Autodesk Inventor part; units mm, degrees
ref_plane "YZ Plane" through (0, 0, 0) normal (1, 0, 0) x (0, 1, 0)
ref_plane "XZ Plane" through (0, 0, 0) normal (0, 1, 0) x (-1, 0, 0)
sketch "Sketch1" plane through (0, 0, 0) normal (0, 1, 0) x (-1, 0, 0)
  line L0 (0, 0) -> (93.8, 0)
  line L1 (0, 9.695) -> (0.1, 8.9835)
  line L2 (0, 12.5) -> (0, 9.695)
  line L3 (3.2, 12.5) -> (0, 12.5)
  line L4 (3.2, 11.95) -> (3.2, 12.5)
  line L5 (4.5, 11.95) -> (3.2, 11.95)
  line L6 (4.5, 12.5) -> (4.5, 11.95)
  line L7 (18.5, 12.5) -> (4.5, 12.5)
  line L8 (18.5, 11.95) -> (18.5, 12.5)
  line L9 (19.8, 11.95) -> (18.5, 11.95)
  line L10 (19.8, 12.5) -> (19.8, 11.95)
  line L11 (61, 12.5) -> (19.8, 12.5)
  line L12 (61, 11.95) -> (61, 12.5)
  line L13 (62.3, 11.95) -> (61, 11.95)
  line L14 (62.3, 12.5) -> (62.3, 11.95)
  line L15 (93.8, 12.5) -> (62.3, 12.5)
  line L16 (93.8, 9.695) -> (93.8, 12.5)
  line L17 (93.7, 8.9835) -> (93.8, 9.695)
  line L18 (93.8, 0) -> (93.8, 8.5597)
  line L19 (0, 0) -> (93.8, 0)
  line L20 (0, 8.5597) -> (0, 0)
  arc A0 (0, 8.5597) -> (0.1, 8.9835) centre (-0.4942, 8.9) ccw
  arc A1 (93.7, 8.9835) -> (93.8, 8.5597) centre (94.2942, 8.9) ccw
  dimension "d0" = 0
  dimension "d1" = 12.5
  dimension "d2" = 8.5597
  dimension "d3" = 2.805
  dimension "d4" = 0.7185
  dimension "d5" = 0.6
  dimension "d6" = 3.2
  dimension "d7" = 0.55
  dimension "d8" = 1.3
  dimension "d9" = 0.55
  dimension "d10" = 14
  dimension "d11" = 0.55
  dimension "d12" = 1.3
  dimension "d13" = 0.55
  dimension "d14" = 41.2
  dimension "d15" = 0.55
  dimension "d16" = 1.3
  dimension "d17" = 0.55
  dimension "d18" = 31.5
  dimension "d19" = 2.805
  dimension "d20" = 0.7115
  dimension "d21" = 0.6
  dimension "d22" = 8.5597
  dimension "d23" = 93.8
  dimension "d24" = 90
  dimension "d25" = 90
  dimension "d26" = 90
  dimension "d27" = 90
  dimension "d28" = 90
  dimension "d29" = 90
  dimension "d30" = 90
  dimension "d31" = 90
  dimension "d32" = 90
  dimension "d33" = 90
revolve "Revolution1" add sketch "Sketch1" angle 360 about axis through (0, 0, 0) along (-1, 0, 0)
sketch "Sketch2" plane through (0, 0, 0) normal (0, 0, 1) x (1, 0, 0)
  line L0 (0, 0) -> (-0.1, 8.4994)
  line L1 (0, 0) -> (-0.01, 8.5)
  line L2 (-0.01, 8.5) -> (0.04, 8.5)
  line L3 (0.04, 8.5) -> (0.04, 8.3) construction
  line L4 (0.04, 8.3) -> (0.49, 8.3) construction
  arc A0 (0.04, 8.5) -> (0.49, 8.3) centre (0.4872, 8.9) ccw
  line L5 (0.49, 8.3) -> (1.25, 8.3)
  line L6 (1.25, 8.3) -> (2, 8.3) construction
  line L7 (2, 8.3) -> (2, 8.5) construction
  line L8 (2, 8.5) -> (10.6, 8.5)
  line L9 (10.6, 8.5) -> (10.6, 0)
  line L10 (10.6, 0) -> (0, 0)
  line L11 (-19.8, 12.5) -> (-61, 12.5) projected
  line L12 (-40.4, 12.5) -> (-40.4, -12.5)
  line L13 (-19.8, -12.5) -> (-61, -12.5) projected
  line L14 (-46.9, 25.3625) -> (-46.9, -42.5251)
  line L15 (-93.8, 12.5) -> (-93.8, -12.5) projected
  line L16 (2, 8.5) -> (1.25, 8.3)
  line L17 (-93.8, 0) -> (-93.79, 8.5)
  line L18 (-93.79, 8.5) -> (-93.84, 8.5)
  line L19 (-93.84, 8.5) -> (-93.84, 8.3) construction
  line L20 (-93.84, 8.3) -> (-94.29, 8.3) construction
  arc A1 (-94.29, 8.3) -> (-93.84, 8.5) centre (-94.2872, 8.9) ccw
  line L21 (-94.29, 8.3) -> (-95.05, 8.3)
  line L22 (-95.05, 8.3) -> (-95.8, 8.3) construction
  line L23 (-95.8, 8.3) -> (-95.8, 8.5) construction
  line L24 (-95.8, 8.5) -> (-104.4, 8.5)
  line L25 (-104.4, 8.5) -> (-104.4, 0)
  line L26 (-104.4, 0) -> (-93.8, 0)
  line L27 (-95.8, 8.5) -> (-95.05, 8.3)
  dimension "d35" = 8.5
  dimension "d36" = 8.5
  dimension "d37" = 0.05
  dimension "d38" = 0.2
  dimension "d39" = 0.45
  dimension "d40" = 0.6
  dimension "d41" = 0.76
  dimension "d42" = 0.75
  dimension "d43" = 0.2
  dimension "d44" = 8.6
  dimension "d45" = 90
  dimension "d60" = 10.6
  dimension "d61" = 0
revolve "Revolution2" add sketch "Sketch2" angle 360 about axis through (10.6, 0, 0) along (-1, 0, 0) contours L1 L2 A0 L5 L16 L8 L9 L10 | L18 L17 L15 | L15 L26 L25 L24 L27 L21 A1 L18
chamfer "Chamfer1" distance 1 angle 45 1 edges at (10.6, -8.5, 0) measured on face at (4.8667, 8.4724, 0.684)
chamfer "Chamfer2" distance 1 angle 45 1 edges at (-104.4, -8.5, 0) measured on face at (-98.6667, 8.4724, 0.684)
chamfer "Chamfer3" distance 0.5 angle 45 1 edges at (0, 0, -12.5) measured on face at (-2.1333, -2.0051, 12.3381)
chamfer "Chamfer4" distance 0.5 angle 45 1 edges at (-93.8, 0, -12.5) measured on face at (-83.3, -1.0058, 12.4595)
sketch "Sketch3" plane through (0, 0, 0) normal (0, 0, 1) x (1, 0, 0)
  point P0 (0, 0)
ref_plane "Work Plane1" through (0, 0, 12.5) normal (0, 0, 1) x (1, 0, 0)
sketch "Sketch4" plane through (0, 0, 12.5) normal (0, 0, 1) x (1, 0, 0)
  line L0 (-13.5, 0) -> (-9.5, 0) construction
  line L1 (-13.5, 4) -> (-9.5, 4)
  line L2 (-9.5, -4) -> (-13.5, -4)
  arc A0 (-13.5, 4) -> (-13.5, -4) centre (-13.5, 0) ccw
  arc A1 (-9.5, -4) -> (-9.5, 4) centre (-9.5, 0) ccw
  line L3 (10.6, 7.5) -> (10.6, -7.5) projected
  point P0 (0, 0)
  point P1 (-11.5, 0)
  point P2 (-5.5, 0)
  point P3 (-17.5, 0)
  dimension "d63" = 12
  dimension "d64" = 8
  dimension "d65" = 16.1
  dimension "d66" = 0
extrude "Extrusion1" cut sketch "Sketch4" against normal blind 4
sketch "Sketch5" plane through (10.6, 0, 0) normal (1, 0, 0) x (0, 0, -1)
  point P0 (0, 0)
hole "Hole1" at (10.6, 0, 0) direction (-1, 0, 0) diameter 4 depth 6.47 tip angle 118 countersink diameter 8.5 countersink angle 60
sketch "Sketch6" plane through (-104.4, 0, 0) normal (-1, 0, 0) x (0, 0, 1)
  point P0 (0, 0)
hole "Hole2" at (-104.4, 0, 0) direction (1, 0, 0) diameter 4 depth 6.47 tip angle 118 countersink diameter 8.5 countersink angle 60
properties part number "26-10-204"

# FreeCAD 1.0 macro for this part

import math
import FreeCAD as App
import Part
import Sketcher
Q = App.Units.Quantity


def edges_at(feature, points):
    """Names of the edges that pass closest to the given points."""
    edges = feature.Shape.Edges
    near = lambda p: min(range(len(edges)), key=lambda i: edges[i].distToShape(Part.Vertex(*p))[0])
    return sorted({f"Edge{near(p) + 1}" for p in points})

doc = App.newDocument("Part")
body = doc.addObject("PartDesign::Body", "Body")

sketch1 = body.newObject("Sketcher::SketchObject", "Sketch")
sketch1.AttachmentSupport = (doc.getObject("XZ_Plane"), [""])
sketch1.MapMode = "FlatFace"
sketch1.addGeometry([
    Part.LineSegment(App.Vector(0, 8.56, 0), App.Vector(0, 0, 0)),
    Part.LineSegment(App.Vector(0, 0, 0), App.Vector(-93.8, 0, 0)),
    Part.LineSegment(App.Vector(-93.8, 0, 0), App.Vector(-93.8, 8.56, 0)),
    Part.ArcOfCircle(Part.Circle(App.Vector(-94.29, 8.9, 0), App.Vector(0, 0, 1), 0.6), math.radians(-35), math.radians(8)),
    Part.LineSegment(App.Vector(-93.7, 8.98, 0), App.Vector(-93.8, 9.7, 0)),
    Part.LineSegment(App.Vector(-93.8, 9.7, 0), App.Vector(-93.8, 12.5, 0)),
    Part.LineSegment(App.Vector(-93.8, 12.5, 0), App.Vector(-62.3, 12.5, 0)),
    Part.LineSegment(App.Vector(-62.3, 12.5, 0), App.Vector(-62.3, 11.95, 0)),
    Part.LineSegment(App.Vector(-62.3, 11.95, 0), App.Vector(-61, 11.95, 0)),
    Part.LineSegment(App.Vector(-61, 11.95, 0), App.Vector(-61, 12.5, 0)),
    Part.LineSegment(App.Vector(-61, 12.5, 0), App.Vector(-19.8, 12.5, 0)),
    Part.LineSegment(App.Vector(-19.8, 12.5, 0), App.Vector(-19.8, 11.95, 0)),
    Part.LineSegment(App.Vector(-19.8, 11.95, 0), App.Vector(-18.5, 11.95, 0)),
    Part.LineSegment(App.Vector(-18.5, 11.95, 0), App.Vector(-18.5, 12.5, 0)),
    Part.LineSegment(App.Vector(-18.5, 12.5, 0), App.Vector(-4.5, 12.5, 0)),
    Part.LineSegment(App.Vector(-4.5, 12.5, 0), App.Vector(-4.5, 11.95, 0)),
    Part.LineSegment(App.Vector(-4.5, 11.95, 0), App.Vector(-3.2, 11.95, 0)),
    Part.LineSegment(App.Vector(-3.2, 11.95, 0), App.Vector(-3.2, 12.5, 0)),
    Part.LineSegment(App.Vector(-3.2, 12.5, 0), App.Vector(0, 12.5, 0)),
    Part.LineSegment(App.Vector(0, 12.5, 0), App.Vector(0, 9.7, 0)),
    Part.LineSegment(App.Vector(0, 9.7, 0), App.Vector(-0.1, 8.98, 0)),
    Part.ArcOfCircle(Part.Circle(App.Vector(0.49, 8.9, 0), App.Vector(0, 0, 1), 0.6), math.radians(172), math.radians(215)),
], False)
sketch1.addConstraint([
    Sketcher.Constraint("Coincident", 0, 2, 1, 1),
    Sketcher.Constraint("Coincident", 1, 2, 2, 1),
    Sketcher.Constraint("Coincident", 2, 2, 3, 1),
    Sketcher.Constraint("Tangent", 3, 2, 4, 1),
    Sketcher.Constraint("Coincident", 4, 2, 5, 1),
    Sketcher.Constraint("Coincident", 5, 2, 6, 1),
    Sketcher.Constraint("Coincident", 6, 2, 7, 1),
    Sketcher.Constraint("Coincident", 7, 2, 8, 1),
    Sketcher.Constraint("Coincident", 8, 2, 9, 1),
    Sketcher.Constraint("Coincident", 9, 2, 10, 1),
    Sketcher.Constraint("Coincident", 10, 2, 11, 1),
    Sketcher.Constraint("Coincident", 11, 2, 12, 1),
    Sketcher.Constraint("Coincident", 12, 2, 13, 1),
    Sketcher.Constraint("Coincident", 13, 2, 14, 1),
    Sketcher.Constraint("Coincident", 14, 2, 15, 1),
    Sketcher.Constraint("Coincident", 15, 2, 16, 1),
    Sketcher.Constraint("Coincident", 16, 2, 17, 1),
    Sketcher.Constraint("Coincident", 17, 2, 18, 1),
    Sketcher.Constraint("Coincident", 18, 2, 19, 1),
    Sketcher.Constraint("Coincident", 19, 2, 20, 1),
    Sketcher.Constraint("Tangent", 20, 2, 21, 1),
    Sketcher.Constraint("Coincident", 21, 2, 0, 1),
    Sketcher.Constraint("Vertical", 0),
    Sketcher.Constraint("Horizontal", 1),
    Sketcher.Constraint("Vertical", 2),
    Sketcher.Constraint("Vertical", 5),
    Sketcher.Constraint("Horizontal", 6),
    Sketcher.Constraint("Vertical", 7),
    Sketcher.Constraint("Horizontal", 8),
    Sketcher.Constraint("Vertical", 9),
    Sketcher.Constraint("Horizontal", 10),
    Sketcher.Constraint("Vertical", 11),
    Sketcher.Constraint("Horizontal", 12),
    Sketcher.Constraint("Vertical", 13),
    Sketcher.Constraint("Horizontal", 14),
    Sketcher.Constraint("Vertical", 15),
    Sketcher.Constraint("Horizontal", 16),
    Sketcher.Constraint("Vertical", 17),
    Sketcher.Constraint("Horizontal", 18),
    Sketcher.Constraint("Vertical", 19),
    Sketcher.Constraint("Coincident", 0, 2, -1, 1),
    Sketcher.Constraint("Equal", 3, 21),
    Sketcher.Constraint("PointOnObject", 18, 2, -2),
    Sketcher.Constraint("Horizontal", 3, 3, 21, 3),
    Sketcher.Constraint("Horizontal", 6, 2, 9, 2),
    Sketcher.Constraint("Horizontal", 8, 2, 11, 2),
    Sketcher.Constraint("Horizontal", 10, 2, 13, 2),
    Sketcher.Constraint("Horizontal", 12, 2, 15, 2),
    Sketcher.Constraint("Horizontal", 14, 2, 17, 2),
    Sketcher.Constraint("Horizontal", 4, 2, 19, 2),
    Sketcher.Constraint("Horizontal", 3, 2, 20, 2),
    Sketcher.Constraint("Horizontal", 2, 2, 21, 2),
    Sketcher.Constraint("Equal", 8, 12),
    Sketcher.Constraint("Equal", 12, 16),
    Sketcher.Constraint("Radius", 3, Q("0.6 mm")),
    Sketcher.Constraint("DistanceX", 14, 1, 14, 2, Q("14 mm")),
    Sketcher.Constraint("DistanceX", 1, 2, 1, 1, Q("93.8 mm")),
    Sketcher.Constraint("DistanceX", 6, 1, 6, 2, Q("31.5 mm")),
    Sketcher.Constraint("DistanceX", 8, 1, 8, 2, Q("1.3 mm")),
    Sketcher.Constraint("DistanceX", 10, 1, 10, 2, Q("41.2 mm")),
    Sketcher.Constraint("DistanceY", 7, 2, 7, 1, Q("0.55 mm")),
    Sketcher.Constraint("DistanceY", -1, 1, 5, 2, Q("12.5 mm")),
    Sketcher.Constraint("DistanceY", 5, 1, 5, 2, Q("2.805 mm")),
    Sketcher.Constraint("Angle", 4, Q("98.0004 deg")),
    Sketcher.Constraint("DistanceY", 0, 2, 0, 1, Q("8.5597 mm")),
])
revolution = body.newObject("PartDesign::Revolution", "Revolution")
revolution.Profile = sketch1
revolution.ReferenceAxis = (sketch1, ["H_Axis"])
revolution.Angle = 360

sketch2 = body.newObject("Sketcher::SketchObject", "Sketch001")
sketch2.AttachmentSupport = (doc.getObject("XY_Plane"), [""])
sketch2.MapMode = "FlatFace"
sketch2.addGeometry([
    Part.LineSegment(App.Vector(-0.01, 8.5, 0), App.Vector(0, 0, 0)),
    Part.LineSegment(App.Vector(0, 0, 0), App.Vector(10.6, 0, 0)),
    Part.LineSegment(App.Vector(10.6, 0, 0), App.Vector(10.6, 8.5, 0)),
    Part.LineSegment(App.Vector(10.6, 8.5, 0), App.Vector(2, 8.5, 0)),
    Part.LineSegment(App.Vector(2, 8.5, 0), App.Vector(1.25, 8.3, 0)),
    Part.LineSegment(App.Vector(1.25, 8.3, 0), App.Vector(0.49, 8.3, 0)),
    Part.ArcOfCircle(Part.Circle(App.Vector(0.4872, 8.9, 0), App.Vector(0, 0, 1), 0.59999), math.radians(-138.18882), math.radians(-89.732622)),
    Part.LineSegment(App.Vector(0.04, 8.5, 0), App.Vector(-0.01, 8.5, 0)),
    Part.LineSegment(App.Vector(-93.79, 8.5, 0), App.Vector(-93.84, 8.5, 0)),
    Part.ArcOfCircle(Part.Circle(App.Vector(-94.2872, 8.9, 0), App.Vector(0, 0, 1), 0.600007), math.radians(-90.267378), math.radians(-41.81118)),
    Part.LineSegment(App.Vector(-94.29, 8.3, 0), App.Vector(-95.05, 8.3, 0)),
    Part.LineSegment(App.Vector(-95.05, 8.3, 0), App.Vector(-95.8, 8.5, 0)),
    Part.LineSegment(App.Vector(-95.8, 8.5, 0), App.Vector(-104.4, 8.5, 0)),
    Part.LineSegment(App.Vector(-104.4, 8.5, 0), App.Vector(-104.4, 0, 0)),
    Part.LineSegment(App.Vector(-104.4, 0, 0), App.Vector(-93.8, 0, 0)),
    Part.LineSegment(App.Vector(-93.8, 0, 0), App.Vector(-93.79, 8.5, 0)),
], False)
sketch2.addConstraint([
    Sketcher.Constraint("Coincident", 0, 2, 1, 1),
    Sketcher.Constraint("Coincident", 1, 2, 2, 1),
    Sketcher.Constraint("Coincident", 2, 2, 3, 1),
    Sketcher.Constraint("Coincident", 3, 2, 4, 1),
    Sketcher.Constraint("Coincident", 4, 2, 5, 1),
    Sketcher.Constraint("Coincident", 5, 2, 6, 2),
    Sketcher.Constraint("Coincident", 6, 1, 7, 1),
    Sketcher.Constraint("Coincident", 7, 2, 0, 1),
    Sketcher.Constraint("Coincident", 8, 2, 9, 2),
    Sketcher.Constraint("Coincident", 9, 1, 10, 1),
    Sketcher.Constraint("Coincident", 10, 2, 11, 1),
    Sketcher.Constraint("Coincident", 11, 2, 12, 1),
    Sketcher.Constraint("Coincident", 12, 2, 13, 1),
    Sketcher.Constraint("Coincident", 13, 2, 14, 1),
    Sketcher.Constraint("Coincident", 14, 2, 15, 1),
    Sketcher.Constraint("Coincident", 15, 2, 8, 1),
    Sketcher.Constraint("Horizontal", 1),
    Sketcher.Constraint("Vertical", 2),
    Sketcher.Constraint("Horizontal", 3),
    Sketcher.Constraint("Horizontal", 5),
    Sketcher.Constraint("Horizontal", 7),
    Sketcher.Constraint("Horizontal", 8),
    Sketcher.Constraint("Horizontal", 10),
    Sketcher.Constraint("Horizontal", 12),
    Sketcher.Constraint("Vertical", 13),
    Sketcher.Constraint("Horizontal", 14),
    Sketcher.Constraint("Coincident", 0, 2, -1, 1),
    Sketcher.Constraint("Equal", 6, 9),
    Sketcher.Constraint("PointOnObject", 13, 2, -1),
    Sketcher.Constraint("Horizontal", 6, 3, 9, 3),
    Sketcher.Constraint("Horizontal", 3, 2, 6, 1),
    Sketcher.Constraint("Horizontal", 7, 2, 8, 2),
    Sketcher.Constraint("Horizontal", 5, 2, 9, 1),
    Sketcher.Constraint("Horizontal", 8, 2, 11, 2),
    Sketcher.Constraint("Equal", 7, 8),
    Sketcher.Constraint("Equal", 5, 10),
    Sketcher.Constraint("Equal", 3, 12),
    Sketcher.Constraint("Equal", 1, 14),
    Sketcher.Constraint("Equal", 4, 11),
    Sketcher.Constraint("Radius", 6, Q("0.6 mm")),
    Sketcher.Constraint("DistanceX", 1, 1, 1, 2, Q("10.6 mm")),
    Sketcher.Constraint("DistanceX", 3, 2, 3, 1, Q("8.6 mm")),
    Sketcher.Constraint("DistanceY", 2, 1, 2, 2, Q("8.5 mm")),
    Sketcher.Constraint("DistanceX", 5, 2, 5, 1, Q("0.76 mm")),
    Sketcher.Constraint("DistanceX", 7, 2, 7, 1, Q("0.05 mm")),
    Sketcher.Constraint("DistanceY", 4, 2, 3, 2, Q("0.2 mm")),
    Sketcher.Constraint("DistanceX", 4, 2, 3, 2, Q("0.75 mm")),
    Sketcher.Constraint("DistanceX", 6, 1, 5, 2, Q("0.45 mm")),
    Sketcher.Constraint("DistanceX", 11, 2, -1, 1, Q("95.8 mm")),
])
revolution2 = body.newObject("PartDesign::Revolution", "Revolution001")
revolution2.Profile = sketch2
revolution2.ReferenceAxis = (sketch2, ["H_Axis"])
revolution2.Angle = 360
doc.recompute()

chamfer = body.newObject("PartDesign::Chamfer", "Chamfer")
chamfer.Base = (revolution2, edges_at(revolution2, [(10.6, -8.5, 0)]))
chamfer.Size = 1
doc.recompute()

chamfer2 = body.newObject("PartDesign::Chamfer", "Chamfer001")
chamfer2.Base = (chamfer, edges_at(chamfer, [(-104.4, -8.5, 0)]))
chamfer2.Size = 1
doc.recompute()

chamfer3 = body.newObject("PartDesign::Chamfer", "Chamfer002")
chamfer3.Base = (chamfer2, edges_at(chamfer2, [(0, 0, -12.5)]))
chamfer3.Size = 0.5
doc.recompute()

chamfer4 = body.newObject("PartDesign::Chamfer", "Chamfer003")
chamfer4.Base = (chamfer3, edges_at(chamfer3, [(-93.8, 0, -12.5)]))
chamfer4.Size = 0.5

sketch3 = body.newObject("Sketcher::SketchObject", "Sketch002")
sketch3.AttachmentSupport = (doc.getObject("XY_Plane"), [""])
sketch3.MapMode = "FlatFace"
sketch3.AttachmentOffset = App.Placement(App.Vector(0, 0, 12.5), App.Rotation())
sketch3.addGeometry([
    Part.LineSegment(App.Vector(-9.5, 4, 0), App.Vector(-13.5, 4, 0)),
    Part.ArcOfCircle(Part.Circle(App.Vector(-13.5, 0, 0), App.Vector(0, 0, 1), 4), math.radians(90), math.radians(270)),
    Part.LineSegment(App.Vector(-13.5, -4, 0), App.Vector(-9.5, -4, 0)),
    Part.ArcOfCircle(Part.Circle(App.Vector(-9.5, 0, 0), App.Vector(0, 0, 1), 4), math.radians(-90), math.radians(90)),
], False)
sketch3.addConstraint([
    Sketcher.Constraint("Tangent", 0, 2, 1, 1),
    Sketcher.Constraint("Tangent", 1, 2, 2, 1),
    Sketcher.Constraint("Tangent", 2, 2, 3, 1),
    Sketcher.Constraint("Tangent", 3, 2, 0, 1),
    Sketcher.Constraint("Horizontal", 0),
    Sketcher.Constraint("Horizontal", 2),
    Sketcher.Constraint("PointOnObject", 1, 3, -1),
    Sketcher.Constraint("Radius", 1, Q("4 mm")),
    Sketcher.Constraint("DistanceX", 0, 2, 0, 1, Q("4 mm")),
    Sketcher.Constraint("DistanceX", 1, 3, -1, 1, Q("13.5 mm")),
])
pocket1 = body.newObject("PartDesign::Pocket", "Pocket")
pocket1.Profile = sketch3
pocket1.Length = 4

sketch4 = body.newObject("Sketcher::SketchObject", "Sketch003")
sketch4.AttachmentSupport = (doc.getObject("YZ_Plane"), [""])
sketch4.MapMode = "FlatFace"
sketch4.AttachmentOffset = App.Placement(App.Vector(0, 0, 10.6), App.Rotation())
sketch4.addGeometry(Part.Circle(App.Vector(0, 0, 0), App.Vector(0, 0, 1), 2), False)
sketch4.addConstraint([
    Sketcher.Constraint("Coincident", 0, 3, -1, 1),
    Sketcher.Constraint("Diameter", 0, Q("4 mm")),
])
doc.recompute()
hole = body.newObject("PartDesign::Hole", "Hole")
hole.Profile = sketch4
hole.ThreadType = "None"
hole.Diameter = 4
hole.DepthType = "Dimension"
hole.Depth = 6.47
hole.DrillPoint = "Angled"
hole.DrillPointAngle = 118
hole.HoleCutType = "Countersink"
hole.HoleCutDiameter = 8.5
hole.HoleCutCountersinkAngle = 60

sketch5 = body.newObject("Sketcher::SketchObject", "Sketch004")
sketch5.AttachmentSupport = (doc.getObject("YZ_Plane"), [""])
sketch5.MapMode = "FlatFace"
sketch5.AttachmentOffset = App.Placement(App.Vector(0, 0, -104.4), App.Rotation())
sketch5.addGeometry(Part.Circle(App.Vector(0, 0, 0), App.Vector(0, 0, 1), 2), False)
sketch5.addConstraint([
    Sketcher.Constraint("Coincident", 0, 3, -1, 1),
    Sketcher.Constraint("Diameter", 0, Q("4 mm")),
])
doc.recompute()
hole2 = body.newObject("PartDesign::Hole", "Hole001")
hole2.Profile = sketch5
hole2.ThreadType = "None"
hole2.Diameter = 4
hole2.DepthType = "Dimension"
hole2.Depth = 6.47
hole2.DrillPoint = "Angled"
hole2.DrillPointAngle = 118
hole2.HoleCutType = "Countersink"
hole2.HoleCutDiameter = 8.5
hole2.HoleCutCountersinkAngle = 60
hole2.Reversed = True

doc.recompute()
